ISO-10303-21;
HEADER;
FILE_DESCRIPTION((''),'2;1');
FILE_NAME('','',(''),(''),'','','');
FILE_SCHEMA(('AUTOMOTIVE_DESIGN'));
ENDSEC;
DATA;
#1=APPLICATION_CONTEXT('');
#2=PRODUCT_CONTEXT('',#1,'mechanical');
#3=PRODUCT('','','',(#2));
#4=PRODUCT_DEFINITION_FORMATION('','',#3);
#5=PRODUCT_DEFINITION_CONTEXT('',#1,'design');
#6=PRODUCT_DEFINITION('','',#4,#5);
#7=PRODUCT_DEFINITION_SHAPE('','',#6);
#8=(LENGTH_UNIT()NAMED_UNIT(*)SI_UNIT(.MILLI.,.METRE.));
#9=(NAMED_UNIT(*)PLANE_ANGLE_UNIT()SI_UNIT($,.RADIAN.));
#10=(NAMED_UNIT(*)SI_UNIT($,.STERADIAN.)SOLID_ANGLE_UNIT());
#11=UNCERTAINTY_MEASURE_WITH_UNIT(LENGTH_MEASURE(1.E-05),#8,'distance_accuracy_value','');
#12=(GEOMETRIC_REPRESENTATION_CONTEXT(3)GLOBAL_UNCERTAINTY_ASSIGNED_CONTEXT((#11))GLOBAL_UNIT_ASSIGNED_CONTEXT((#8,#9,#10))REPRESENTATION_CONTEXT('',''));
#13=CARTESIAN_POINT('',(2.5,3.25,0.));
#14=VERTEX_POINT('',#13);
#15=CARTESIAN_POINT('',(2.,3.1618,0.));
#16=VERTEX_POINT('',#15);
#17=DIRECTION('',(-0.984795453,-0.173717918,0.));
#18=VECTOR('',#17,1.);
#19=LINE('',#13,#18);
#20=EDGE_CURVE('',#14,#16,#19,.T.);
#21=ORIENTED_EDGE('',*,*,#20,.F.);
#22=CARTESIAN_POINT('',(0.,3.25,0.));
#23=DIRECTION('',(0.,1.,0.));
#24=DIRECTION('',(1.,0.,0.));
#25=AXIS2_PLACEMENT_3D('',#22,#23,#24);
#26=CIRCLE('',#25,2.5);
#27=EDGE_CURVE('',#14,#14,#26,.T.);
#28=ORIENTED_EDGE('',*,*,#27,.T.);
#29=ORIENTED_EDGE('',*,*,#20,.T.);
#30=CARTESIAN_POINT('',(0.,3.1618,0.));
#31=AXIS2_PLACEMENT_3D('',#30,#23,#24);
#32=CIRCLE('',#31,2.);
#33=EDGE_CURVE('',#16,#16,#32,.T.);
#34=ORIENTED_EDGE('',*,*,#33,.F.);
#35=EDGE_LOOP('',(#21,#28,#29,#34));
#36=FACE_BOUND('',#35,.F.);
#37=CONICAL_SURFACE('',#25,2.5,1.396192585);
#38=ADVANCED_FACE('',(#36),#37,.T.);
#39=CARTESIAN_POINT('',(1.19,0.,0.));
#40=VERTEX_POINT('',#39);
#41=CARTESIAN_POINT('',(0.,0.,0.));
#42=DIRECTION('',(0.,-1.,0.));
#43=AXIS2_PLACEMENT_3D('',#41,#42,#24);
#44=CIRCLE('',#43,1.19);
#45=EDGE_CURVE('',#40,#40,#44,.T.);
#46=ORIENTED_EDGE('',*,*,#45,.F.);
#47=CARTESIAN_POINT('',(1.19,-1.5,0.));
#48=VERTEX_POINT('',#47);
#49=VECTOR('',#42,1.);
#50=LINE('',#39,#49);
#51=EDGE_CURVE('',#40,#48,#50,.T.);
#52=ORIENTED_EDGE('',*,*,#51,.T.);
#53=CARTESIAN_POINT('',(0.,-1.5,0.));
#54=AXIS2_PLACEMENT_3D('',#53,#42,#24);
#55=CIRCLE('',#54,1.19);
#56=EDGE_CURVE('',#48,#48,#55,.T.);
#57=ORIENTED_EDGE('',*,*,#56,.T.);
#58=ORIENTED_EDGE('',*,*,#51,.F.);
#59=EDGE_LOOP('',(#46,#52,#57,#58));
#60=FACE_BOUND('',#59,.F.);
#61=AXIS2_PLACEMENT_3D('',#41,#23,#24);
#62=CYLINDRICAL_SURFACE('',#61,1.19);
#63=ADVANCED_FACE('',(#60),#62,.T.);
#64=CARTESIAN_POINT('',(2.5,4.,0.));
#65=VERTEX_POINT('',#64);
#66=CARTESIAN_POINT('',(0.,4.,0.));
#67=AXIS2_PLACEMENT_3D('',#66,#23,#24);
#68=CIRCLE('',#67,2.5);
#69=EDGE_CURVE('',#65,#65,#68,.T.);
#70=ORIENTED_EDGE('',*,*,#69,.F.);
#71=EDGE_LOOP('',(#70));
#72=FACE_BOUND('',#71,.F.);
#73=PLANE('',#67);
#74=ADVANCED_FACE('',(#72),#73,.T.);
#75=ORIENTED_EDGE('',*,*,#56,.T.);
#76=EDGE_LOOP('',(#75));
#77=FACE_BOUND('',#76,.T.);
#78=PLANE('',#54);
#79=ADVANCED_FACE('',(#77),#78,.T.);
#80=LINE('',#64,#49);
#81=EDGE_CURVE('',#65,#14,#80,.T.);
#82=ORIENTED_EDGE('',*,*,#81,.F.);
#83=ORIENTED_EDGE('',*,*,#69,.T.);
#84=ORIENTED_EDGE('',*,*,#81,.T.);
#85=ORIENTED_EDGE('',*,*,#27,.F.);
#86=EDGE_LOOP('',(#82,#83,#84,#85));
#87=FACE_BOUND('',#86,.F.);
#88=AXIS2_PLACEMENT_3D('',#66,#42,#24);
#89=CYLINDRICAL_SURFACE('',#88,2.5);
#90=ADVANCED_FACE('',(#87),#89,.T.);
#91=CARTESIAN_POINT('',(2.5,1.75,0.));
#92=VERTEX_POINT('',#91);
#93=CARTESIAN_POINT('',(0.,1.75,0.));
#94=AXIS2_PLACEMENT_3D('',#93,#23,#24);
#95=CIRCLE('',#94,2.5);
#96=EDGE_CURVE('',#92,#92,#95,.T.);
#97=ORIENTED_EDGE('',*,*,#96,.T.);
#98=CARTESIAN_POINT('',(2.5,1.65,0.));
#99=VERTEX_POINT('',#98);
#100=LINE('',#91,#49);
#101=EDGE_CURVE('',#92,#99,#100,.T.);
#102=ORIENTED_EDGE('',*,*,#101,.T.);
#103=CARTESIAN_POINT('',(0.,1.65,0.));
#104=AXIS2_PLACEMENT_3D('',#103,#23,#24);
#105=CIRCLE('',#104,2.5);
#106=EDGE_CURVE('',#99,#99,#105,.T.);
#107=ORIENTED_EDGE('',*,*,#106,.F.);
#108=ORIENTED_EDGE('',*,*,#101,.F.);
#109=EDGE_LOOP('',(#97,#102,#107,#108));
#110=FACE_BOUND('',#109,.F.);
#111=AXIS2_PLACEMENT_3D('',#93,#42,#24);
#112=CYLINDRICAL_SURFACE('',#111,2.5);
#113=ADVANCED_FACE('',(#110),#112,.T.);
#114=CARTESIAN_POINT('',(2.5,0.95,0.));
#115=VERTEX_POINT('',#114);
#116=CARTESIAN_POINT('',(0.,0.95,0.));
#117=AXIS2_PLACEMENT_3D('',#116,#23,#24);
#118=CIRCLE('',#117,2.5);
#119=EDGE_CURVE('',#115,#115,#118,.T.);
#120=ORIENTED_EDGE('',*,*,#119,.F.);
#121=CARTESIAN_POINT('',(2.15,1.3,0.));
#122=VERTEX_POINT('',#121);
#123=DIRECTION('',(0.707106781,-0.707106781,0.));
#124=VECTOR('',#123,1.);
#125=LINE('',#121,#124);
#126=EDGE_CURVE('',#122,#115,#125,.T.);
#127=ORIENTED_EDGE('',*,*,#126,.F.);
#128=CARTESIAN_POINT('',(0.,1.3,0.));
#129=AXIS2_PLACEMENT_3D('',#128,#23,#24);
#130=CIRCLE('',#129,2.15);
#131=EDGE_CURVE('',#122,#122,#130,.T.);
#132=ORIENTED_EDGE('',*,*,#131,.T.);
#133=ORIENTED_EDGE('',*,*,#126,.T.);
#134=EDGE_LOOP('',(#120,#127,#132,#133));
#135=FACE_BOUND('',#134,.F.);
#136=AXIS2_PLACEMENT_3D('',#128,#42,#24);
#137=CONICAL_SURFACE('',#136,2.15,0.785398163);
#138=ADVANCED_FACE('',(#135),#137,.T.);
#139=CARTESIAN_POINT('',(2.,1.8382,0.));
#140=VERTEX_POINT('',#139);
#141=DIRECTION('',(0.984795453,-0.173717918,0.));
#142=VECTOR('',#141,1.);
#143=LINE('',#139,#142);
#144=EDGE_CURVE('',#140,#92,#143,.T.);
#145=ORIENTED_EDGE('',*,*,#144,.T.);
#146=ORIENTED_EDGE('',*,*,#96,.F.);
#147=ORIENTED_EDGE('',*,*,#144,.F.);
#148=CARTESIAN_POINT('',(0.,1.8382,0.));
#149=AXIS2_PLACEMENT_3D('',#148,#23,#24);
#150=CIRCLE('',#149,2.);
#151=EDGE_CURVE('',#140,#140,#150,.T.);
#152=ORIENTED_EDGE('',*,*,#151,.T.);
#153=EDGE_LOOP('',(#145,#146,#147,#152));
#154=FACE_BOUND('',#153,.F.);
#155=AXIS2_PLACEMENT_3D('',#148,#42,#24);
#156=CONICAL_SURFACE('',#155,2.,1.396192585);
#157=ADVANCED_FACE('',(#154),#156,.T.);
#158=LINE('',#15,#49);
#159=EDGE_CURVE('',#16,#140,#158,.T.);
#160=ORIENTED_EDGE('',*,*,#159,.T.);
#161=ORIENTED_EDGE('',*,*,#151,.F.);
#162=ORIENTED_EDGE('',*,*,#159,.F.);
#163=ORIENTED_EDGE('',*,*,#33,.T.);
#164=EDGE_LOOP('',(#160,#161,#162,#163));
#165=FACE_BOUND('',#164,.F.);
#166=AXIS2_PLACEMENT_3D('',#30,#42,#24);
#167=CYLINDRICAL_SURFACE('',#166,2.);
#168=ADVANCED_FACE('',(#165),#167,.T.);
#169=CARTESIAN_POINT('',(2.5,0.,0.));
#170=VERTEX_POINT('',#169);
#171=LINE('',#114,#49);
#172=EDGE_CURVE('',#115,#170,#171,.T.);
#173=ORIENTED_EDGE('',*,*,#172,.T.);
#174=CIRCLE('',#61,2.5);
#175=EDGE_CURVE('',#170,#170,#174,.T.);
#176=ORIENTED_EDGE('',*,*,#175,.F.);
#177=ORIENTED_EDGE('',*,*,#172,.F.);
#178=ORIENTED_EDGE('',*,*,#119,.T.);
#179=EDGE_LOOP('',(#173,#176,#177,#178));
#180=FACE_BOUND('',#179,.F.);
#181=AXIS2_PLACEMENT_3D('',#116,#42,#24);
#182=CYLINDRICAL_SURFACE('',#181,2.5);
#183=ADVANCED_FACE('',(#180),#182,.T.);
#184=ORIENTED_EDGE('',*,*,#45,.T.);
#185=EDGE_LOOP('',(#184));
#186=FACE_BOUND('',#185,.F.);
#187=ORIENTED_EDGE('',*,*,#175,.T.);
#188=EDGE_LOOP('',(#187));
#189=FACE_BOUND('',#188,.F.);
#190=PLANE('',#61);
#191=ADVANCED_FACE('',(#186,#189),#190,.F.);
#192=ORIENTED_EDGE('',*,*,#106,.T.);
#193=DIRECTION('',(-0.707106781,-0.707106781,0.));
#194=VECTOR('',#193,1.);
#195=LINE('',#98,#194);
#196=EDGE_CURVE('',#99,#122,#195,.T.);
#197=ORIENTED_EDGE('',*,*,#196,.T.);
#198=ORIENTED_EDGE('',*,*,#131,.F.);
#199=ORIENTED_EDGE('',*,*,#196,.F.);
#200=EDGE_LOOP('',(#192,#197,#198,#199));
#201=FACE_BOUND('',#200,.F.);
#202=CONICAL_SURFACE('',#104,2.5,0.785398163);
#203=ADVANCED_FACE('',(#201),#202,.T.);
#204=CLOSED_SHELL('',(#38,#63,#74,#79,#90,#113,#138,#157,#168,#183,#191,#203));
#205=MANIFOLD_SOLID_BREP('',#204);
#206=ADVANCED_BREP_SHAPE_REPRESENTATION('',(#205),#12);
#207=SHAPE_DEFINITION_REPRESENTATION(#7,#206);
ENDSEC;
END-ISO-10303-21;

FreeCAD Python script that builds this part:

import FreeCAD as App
import Part
import Sketcher

V = App.Vector
Q = App.Units.Quantity

doc = App.newDocument("Part")
body = doc.addObject("PartDesign::Body", "Body")

# Sketch on XY plane
sketch1 = doc.addObject("Sketcher::SketchObject", "Sketch")
body.addObject(sketch1)
sketch1.AttachmentSupport = (doc.XY_Plane, [""])
sketch1.MapMode = "FlatFace"
sketch1.addGeometry(Part.LineSegment(V(0, 4, 0), V(0, 0, 0)), False)
sketch1.addGeometry(Part.LineSegment(V(0, 0, 0), V(2.5, 0, 0)), False)
sketch1.addGeometry(Part.LineSegment(V(2.5, 0, 0), V(2.5, 0.95, 0)), False)
sketch1.addGeometry(Part.LineSegment(V(2.5, 0.95, 0), V(2.15, 1.3, 0)), False)
sketch1.addGeometry(Part.LineSegment(V(2.15, 1.3, 0), V(2.5, 1.65, 0)), False)
sketch1.addGeometry(Part.LineSegment(V(2.5, 1.65, 0), V(2.5, 1.75, 0)), False)
sketch1.addGeometry(Part.LineSegment(V(2.5, 1.75, 0), V(2, 1.8382, 0)), False)
sketch1.addGeometry(Part.LineSegment(V(2, 1.8382, 0), V(2, 3.1618, 0)), False)
sketch1.addGeometry(Part.LineSegment(V(2, 3.1618, 0), V(2.5, 3.25, 0)), False)
sketch1.addGeometry(Part.LineSegment(V(2.5, 3.25, 0), V(2.5, 4, 0)), False)
sketch1.addGeometry(Part.LineSegment(V(2.5, 4, 0), V(0, 4, 0)), False)
sketch1.addConstraint(Sketcher.Constraint("Coincident", 0, 2, 1, 1))
sketch1.addConstraint(Sketcher.Constraint("Coincident", 1, 2, 2, 1))
sketch1.addConstraint(Sketcher.Constraint("Coincident", 2, 2, 3, 1))
sketch1.addConstraint(Sketcher.Constraint("Coincident", 3, 2, 4, 1))
sketch1.addConstraint(Sketcher.Constraint("Coincident", 4, 2, 5, 1))
sketch1.addConstraint(Sketcher.Constraint("Coincident", 5, 2, 6, 1))
sketch1.addConstraint(Sketcher.Constraint("Coincident", 6, 2, 7, 1))
sketch1.addConstraint(Sketcher.Constraint("Coincident", 7, 2, 8, 1))
sketch1.addConstraint(Sketcher.Constraint("Coincident", 8, 2, 9, 1))
sketch1.addConstraint(Sketcher.Constraint("Coincident", 9, 2, 10, 1))
sketch1.addConstraint(Sketcher.Constraint("Coincident", 10, 2, 0, 1))
sketch1.addConstraint(Sketcher.Constraint("Vertical", 0))
sketch1.addConstraint(Sketcher.Constraint("Horizontal", 1))
sketch1.addConstraint(Sketcher.Constraint("Vertical", 2))
sketch1.addConstraint(Sketcher.Constraint("Vertical", 5))
sketch1.addConstraint(Sketcher.Constraint("Vertical", 7))
sketch1.addConstraint(Sketcher.Constraint("Vertical", 9))
sketch1.addConstraint(Sketcher.Constraint("Horizontal", 10))
sketch1.addConstraint(Sketcher.Constraint("Coincident", 0, 2, -1, 1))
sketch1.addConstraint(Sketcher.Constraint("Perpendicular", 3, 4))
sketch1.addConstraint(Sketcher.Constraint("Vertical", 2, 2, 4, 2))
sketch1.addConstraint(Sketcher.Constraint("Vertical", 5, 2, 8, 2))
sketch1.addConstraint(Sketcher.Constraint("Equal", 3, 4))
sketch1.addConstraint(Sketcher.Constraint("Equal", 6, 8))
sketch1.addConstraint(Sketcher.Constraint("DistanceY", 9, 1, 9, 2, Q("0.75 mm")))
sketch1.addConstraint(Sketcher.Constraint("DistanceY", -1, 1, 3, 2, Q("1.3 mm")))
sketch1.addConstraint(Sketcher.Constraint("DistanceY", 0, 2, 0, 1, Q("4 mm")))
sketch1.addConstraint(Sketcher.Constraint("DistanceY", -1, 1, 5, 2, Q("1.75 mm")))
sketch1.addConstraint(Sketcher.Constraint("DistanceX", 3, 2, 2, 2, Q("0.35 mm")))
sketch1.addConstraint(Sketcher.Constraint("DistanceX", 1, 1, 1, 2, Q("2.5 mm")))
sketch1.addConstraint(Sketcher.Constraint("DistanceY", 7, 1, 7, 2, Q("1.3236 mm")))
sketch1.addConstraint(Sketcher.Constraint("DistanceX", -1, 1, 6, 2, Q("2 mm")))
revolution = doc.addObject("PartDesign::Revolution", "Revolution")
body.addObject(revolution)
revolution.Profile = sketch1
revolution.ReferenceAxis = (sketch1, ["V_Axis"])
revolution.Angle = 360

# Sketch on XZ plane
sketch2 = doc.addObject("Sketcher::SketchObject", "Sketch001")
body.addObject(sketch2)
sketch2.AttachmentSupport = (doc.XZ_Plane, [""])
sketch2.MapMode = "FlatFace"
sketch2.addGeometry(Part.Circle(V(0, 0, 0), V(0, 0, 1), 1.19), False)
sketch2.addConstraint(Sketcher.Constraint("Coincident", 0, 3, -1, 1))
sketch2.addConstraint(Sketcher.Constraint("Diameter", 0, Q("2.38 mm")))
pad1 = doc.addObject("PartDesign::Pad", "Pad")
body.addObject(pad1)
pad1.Profile = sketch2
pad1.Length = 1.5

doc.recompute()
